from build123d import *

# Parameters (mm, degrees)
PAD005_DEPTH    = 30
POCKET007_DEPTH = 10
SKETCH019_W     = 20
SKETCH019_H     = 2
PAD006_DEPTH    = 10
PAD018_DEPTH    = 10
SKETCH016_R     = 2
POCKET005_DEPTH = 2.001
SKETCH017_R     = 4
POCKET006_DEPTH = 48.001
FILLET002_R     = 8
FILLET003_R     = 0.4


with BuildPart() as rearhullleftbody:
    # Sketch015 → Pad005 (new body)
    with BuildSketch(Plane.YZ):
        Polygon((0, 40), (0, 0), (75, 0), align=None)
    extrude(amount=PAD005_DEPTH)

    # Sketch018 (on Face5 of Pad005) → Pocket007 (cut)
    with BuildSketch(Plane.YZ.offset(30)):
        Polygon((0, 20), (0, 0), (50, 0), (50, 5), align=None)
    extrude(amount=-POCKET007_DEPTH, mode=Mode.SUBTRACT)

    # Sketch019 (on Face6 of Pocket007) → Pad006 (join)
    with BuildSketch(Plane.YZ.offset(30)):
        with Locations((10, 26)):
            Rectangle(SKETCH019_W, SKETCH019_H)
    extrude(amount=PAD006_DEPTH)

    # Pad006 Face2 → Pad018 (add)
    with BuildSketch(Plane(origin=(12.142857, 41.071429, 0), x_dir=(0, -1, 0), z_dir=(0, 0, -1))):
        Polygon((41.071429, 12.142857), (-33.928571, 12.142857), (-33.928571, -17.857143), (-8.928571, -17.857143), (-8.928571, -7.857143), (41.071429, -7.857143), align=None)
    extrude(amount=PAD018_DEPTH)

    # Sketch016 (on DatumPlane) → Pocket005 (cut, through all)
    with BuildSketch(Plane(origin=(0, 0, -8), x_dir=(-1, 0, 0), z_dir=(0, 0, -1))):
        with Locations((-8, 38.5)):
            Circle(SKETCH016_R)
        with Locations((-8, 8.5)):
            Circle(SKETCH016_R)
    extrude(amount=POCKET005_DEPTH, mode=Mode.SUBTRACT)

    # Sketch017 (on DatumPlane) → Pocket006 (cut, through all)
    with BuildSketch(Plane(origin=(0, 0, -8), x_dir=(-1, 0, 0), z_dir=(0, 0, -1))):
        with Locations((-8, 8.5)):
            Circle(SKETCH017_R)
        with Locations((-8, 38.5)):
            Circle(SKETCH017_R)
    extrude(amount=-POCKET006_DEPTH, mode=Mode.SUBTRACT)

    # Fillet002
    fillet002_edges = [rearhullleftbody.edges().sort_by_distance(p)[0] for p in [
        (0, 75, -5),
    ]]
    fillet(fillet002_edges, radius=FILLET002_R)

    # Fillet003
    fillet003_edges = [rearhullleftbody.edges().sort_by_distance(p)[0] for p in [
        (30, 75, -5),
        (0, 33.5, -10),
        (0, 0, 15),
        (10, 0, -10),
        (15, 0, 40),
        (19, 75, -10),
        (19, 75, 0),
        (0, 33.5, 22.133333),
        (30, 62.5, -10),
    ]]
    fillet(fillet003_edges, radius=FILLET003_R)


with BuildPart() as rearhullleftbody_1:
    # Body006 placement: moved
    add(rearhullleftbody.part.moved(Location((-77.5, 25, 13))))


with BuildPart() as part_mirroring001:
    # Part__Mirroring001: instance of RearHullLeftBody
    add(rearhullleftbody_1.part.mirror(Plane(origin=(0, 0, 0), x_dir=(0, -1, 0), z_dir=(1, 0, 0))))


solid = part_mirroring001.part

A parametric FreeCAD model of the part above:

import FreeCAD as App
import Part
import Sketcher
from FreeCAD import Vector


def edges_at(feature, points):
    """Names of the edges that pass closest to the given points."""
    edges = feature.Shape.Edges
    near = lambda p: min(range(len(edges)), key=lambda i: edges[i].distToShape(Part.Vertex(*p))[0])
    return sorted({f"Edge{near(p) + 1}" for p in points})

doc = App.newDocument("Part")
body = doc.addObject("PartDesign::Body", "Body")

sketch1 = body.newObject("Sketcher::SketchObject", "Sketch")
sketch1.AttachmentSupport = (doc.getObject("YZ_Plane"), [""])
sketch1.MapMode = "FlatFace"
sketch1.addGeometry([
    Part.LineSegment(Vector(0, 40, 0), Vector(0, 0, 0)),
    Part.LineSegment(Vector(0, 0, 0), Vector(75, 0, 0)),
    Part.LineSegment(Vector(75, 0, 0), Vector(0, 40, 0)),
], False)
sketch1.addConstraint([
    Sketcher.Constraint("Coincident", 0, 2, 1, 1),
    Sketcher.Constraint("Coincident", 1, 2, 2, 1),
    Sketcher.Constraint("Coincident", 2, 2, 0, 1),
    Sketcher.Constraint("Vertical", 0),
    Sketcher.Constraint("Horizontal", 1),
    Sketcher.Constraint("Coincident", 0, 2, -1, 1),
    Sketcher.Constraint("DistanceX", 1, 1, 1, 2, 75.0),
    Sketcher.Constraint("DistanceY", 0, 2, 0, 1, 40.0),
])
pad1 = body.newObject("PartDesign::Pad", "Pad")
pad1.Profile = sketch1
pad1.Length = 30

sketch2 = body.newObject("Sketcher::SketchObject", "Sketch001")
sketch2.AttachmentSupport = (doc.getObject("YZ_Plane"), [""])
sketch2.MapMode = "FlatFace"
sketch2.AttachmentOffset = App.Placement(Vector(0, 0, 30), App.Rotation())
sketch2.addGeometry([
    Part.LineSegment(Vector(0, 20, 0), Vector(0, 0, 0)),
    Part.LineSegment(Vector(0, 0, 0), Vector(50, 0, 0)),
    Part.LineSegment(Vector(50, 0, 0), Vector(50, 5, 0)),
    Part.LineSegment(Vector(50, 5, 0), Vector(0, 20, 0)),
], False)
sketch2.addConstraint([
    Sketcher.Constraint("Coincident", 0, 2, 1, 1),
    Sketcher.Constraint("Coincident", 1, 2, 2, 1),
    Sketcher.Constraint("Coincident", 2, 2, 3, 1),
    Sketcher.Constraint("Coincident", 3, 2, 0, 1),
    Sketcher.Constraint("Vertical", 0),
    Sketcher.Constraint("Horizontal", 1),
    Sketcher.Constraint("Vertical", 2),
    Sketcher.Constraint("Coincident", 0, 2, -1, 1),
    Sketcher.Constraint("DistanceX", 1, 1, 1, 2, 50.0),
    Sketcher.Constraint("DistanceY", 0, 2, 0, 1, 20.0),
    Sketcher.Constraint("DistanceY", 2, 1, 2, 2, 5.0),
])
pocket1 = body.newObject("PartDesign::Pocket", "Pocket")
pocket1.Profile = sketch2
pocket1.Length = 10

sketch3 = body.newObject("Sketcher::SketchObject", "Sketch002")
sketch3.AttachmentSupport = (doc.getObject("YZ_Plane"), [""])
sketch3.MapMode = "FlatFace"
sketch3.AttachmentOffset = App.Placement(Vector(0, 0, 30), App.Rotation())
sketch3.addGeometry([
    Part.LineSegment(Vector(0, 27, 0), Vector(0, 25, 0)),
    Part.LineSegment(Vector(0, 25, 0), Vector(20, 25, 0)),
    Part.LineSegment(Vector(20, 25, 0), Vector(20, 27, 0)),
    Part.LineSegment(Vector(20, 27, 0), Vector(0, 27, 0)),
], False)
sketch3.addConstraint([
    Sketcher.Constraint("Coincident", 0, 2, 1, 1),
    Sketcher.Constraint("Coincident", 1, 2, 2, 1),
    Sketcher.Constraint("Coincident", 2, 2, 3, 1),
    Sketcher.Constraint("Coincident", 3, 2, 0, 1),
    Sketcher.Constraint("Vertical", 0),
    Sketcher.Constraint("Horizontal", 1),
    Sketcher.Constraint("Vertical", 2),
    Sketcher.Constraint("Horizontal", 3),
    Sketcher.Constraint("PointOnObject", 0, 2, -2),
    Sketcher.Constraint("DistanceX", 1, 1, 1, 2, 20.0),
    Sketcher.Constraint("DistanceY", 0, 2, 0, 1, 2.0),
    Sketcher.Constraint("DistanceY", -1, 1, 0, 2, 25.0),
])
pad2 = body.newObject("PartDesign::Pad", "Pad001")
pad2.Profile = sketch3
pad2.Length = 10

sketch4 = body.newObject("Sketcher::SketchObject", "Sketch003")
sketch4.AttachmentSupport = (doc.getObject("XY_Plane"), [""])
sketch4.MapMode = "FlatFace"
sketch4.addGeometry([
    Part.LineSegment(Vector(0, 0, 0), Vector(0, 75, 0)),
    Part.LineSegment(Vector(0, 75, 0), Vector(30, 75, 0)),
    Part.LineSegment(Vector(30, 75, 0), Vector(30, 50, 0)),
    Part.LineSegment(Vector(30, 50, 0), Vector(20, 50, 0)),
    Part.LineSegment(Vector(20, 50, 0), Vector(20, 0, 0)),
    Part.LineSegment(Vector(20, 0, 0), Vector(0, 0, 0)),
], False)
sketch4.addConstraint([
    Sketcher.Constraint("Coincident", 0, 2, 1, 1),
    Sketcher.Constraint("Coincident", 1, 2, 2, 1),
    Sketcher.Constraint("Coincident", 2, 2, 3, 1),
    Sketcher.Constraint("Coincident", 3, 2, 4, 1),
    Sketcher.Constraint("Coincident", 4, 2, 5, 1),
    Sketcher.Constraint("Coincident", 5, 2, 0, 1),
    Sketcher.Constraint("Vertical", 0),
    Sketcher.Constraint("Horizontal", 1),
    Sketcher.Constraint("Vertical", 2),
    Sketcher.Constraint("Horizontal", 3),
    Sketcher.Constraint("Vertical", 4),
    Sketcher.Constraint("Horizontal", 5),
    Sketcher.Constraint("Coincident", 5, 2, -1, 1),
    Sketcher.Constraint("DistanceX", 1, 1, 1, 2, 30.0),
    Sketcher.Constraint("DistanceX", 3, 2, 3, 1, 10.0),
    Sketcher.Constraint("DistanceY", 0, 1, 0, 2, 75.0),
    Sketcher.Constraint("DistanceY", 2, 2, 2, 1, 25.0),
])
pad3 = body.newObject("PartDesign::Pad", "Pad002")
pad3.Profile = sketch4
pad3.Length = 10
pad3.Reversed = True

sketch5 = body.newObject("Sketcher::SketchObject", "Sketch004")
sketch5.AttachmentSupport = (doc.getObject("XY_Plane"), [""])
sketch5.MapMode = "FlatFace"
sketch5.AttachmentOffset = App.Placement(Vector(0, 0, -8), App.Rotation())
sketch5.addGeometry([
    Part.Circle(Vector(8, 38.5, 0), Vector(0, 0, 1), 2),
    Part.Circle(Vector(8, 8.5, 0), Vector(0, 0, 1), 2),
], False)
sketch5.addConstraint([
    Sketcher.Constraint("Equal", 0, 1),
    Sketcher.Constraint("Vertical", 0, 3, 1, 3),
    Sketcher.Constraint("Diameter", 0, 4.0),
    Sketcher.Constraint("DistanceX", -1, 1, 0, 3, 8.0),
    Sketcher.Constraint("DistanceY", 1, 3, 0, 3, 30.0),
    Sketcher.Constraint("DistanceY", -1, 1, 0, 3, 38.5),
])
pocket2 = body.newObject("PartDesign::Pocket", "Pocket001")
pocket2.Profile = sketch5
pocket2.Type = "ThroughAll"

sketch6 = body.newObject("Sketcher::SketchObject", "Sketch005")
sketch6.AttachmentSupport = (doc.getObject("XY_Plane"), [""])
sketch6.MapMode = "FlatFace"
sketch6.AttachmentOffset = App.Placement(Vector(0, 0, -8), App.Rotation())
sketch6.addGeometry([
    Part.Circle(Vector(8, 8.5, 0), Vector(0, 0, 1), 4),
    Part.Circle(Vector(8, 38.5, 0), Vector(0, 0, 1), 4),
], False)
sketch6.addConstraint([
    Sketcher.Constraint("Equal", 0, 1),
    Sketcher.Constraint("Vertical", 0, 3, 1, 3),
    Sketcher.Constraint("Diameter", 0, 8.0),
    Sketcher.Constraint("DistanceX", -1, 1, 0, 3, 8.0),
    Sketcher.Constraint("DistanceY", 0, 3, 1, 3, 30.0),
    Sketcher.Constraint("DistanceY", -1, 1, 0, 3, 8.5),
])
pocket3 = body.newObject("PartDesign::Pocket", "Pocket002")
pocket3.Profile = sketch6
pocket3.Type = "ThroughAll"
pocket3.Reversed = True
doc.recompute()

fillet = body.newObject("PartDesign::Fillet", "Fillet")
fillet.Base = (pocket3, edges_at(pocket3, [(0, 75, -5)]))
fillet.Radius = 8
doc.recompute()

fillet2 = body.newObject("PartDesign::Fillet", "Fillet001")
fillet2.Base = (fillet, edges_at(fillet, [
    (30, 75, -5),
    (0, 33.5, -10),
    (0, 0, 15),
    (10, 0, -10),
    (15, 0, 40),
    (19, 75, -10),
    (19, 75, 0),
    (0, 33.5, 22.133),
    (30, 62.5, -10),
]))
fillet2.Radius = 0.4
body2 = doc.addObject("PartDesign::Body", "Body001")
doc.recompute()

body.Placement = App.Placement(Vector(-77.5, 25, 13), App.Rotation(Vector(0, 0, 1), 0))
boolean = body2.newObject("PartDesign::Boolean", "Boolean")
boolean.Type = "Fuse"
boolean.addObjects([body])
body3 = doc.addObject("PartDesign::Body", "Body002")
doc.recompute()

mirroring = doc.addObject("Part::Mirroring", "Mirroring")
mirroring.Source = body2
mirroring.Base = Vector(0, 0, 0)
mirroring.Normal = Vector(1, 0, 0)
body3.BaseFeature = mirroring
doc.recompute()
body2.Visibility = False
mirroring.Visibility = False

doc.recompute()
